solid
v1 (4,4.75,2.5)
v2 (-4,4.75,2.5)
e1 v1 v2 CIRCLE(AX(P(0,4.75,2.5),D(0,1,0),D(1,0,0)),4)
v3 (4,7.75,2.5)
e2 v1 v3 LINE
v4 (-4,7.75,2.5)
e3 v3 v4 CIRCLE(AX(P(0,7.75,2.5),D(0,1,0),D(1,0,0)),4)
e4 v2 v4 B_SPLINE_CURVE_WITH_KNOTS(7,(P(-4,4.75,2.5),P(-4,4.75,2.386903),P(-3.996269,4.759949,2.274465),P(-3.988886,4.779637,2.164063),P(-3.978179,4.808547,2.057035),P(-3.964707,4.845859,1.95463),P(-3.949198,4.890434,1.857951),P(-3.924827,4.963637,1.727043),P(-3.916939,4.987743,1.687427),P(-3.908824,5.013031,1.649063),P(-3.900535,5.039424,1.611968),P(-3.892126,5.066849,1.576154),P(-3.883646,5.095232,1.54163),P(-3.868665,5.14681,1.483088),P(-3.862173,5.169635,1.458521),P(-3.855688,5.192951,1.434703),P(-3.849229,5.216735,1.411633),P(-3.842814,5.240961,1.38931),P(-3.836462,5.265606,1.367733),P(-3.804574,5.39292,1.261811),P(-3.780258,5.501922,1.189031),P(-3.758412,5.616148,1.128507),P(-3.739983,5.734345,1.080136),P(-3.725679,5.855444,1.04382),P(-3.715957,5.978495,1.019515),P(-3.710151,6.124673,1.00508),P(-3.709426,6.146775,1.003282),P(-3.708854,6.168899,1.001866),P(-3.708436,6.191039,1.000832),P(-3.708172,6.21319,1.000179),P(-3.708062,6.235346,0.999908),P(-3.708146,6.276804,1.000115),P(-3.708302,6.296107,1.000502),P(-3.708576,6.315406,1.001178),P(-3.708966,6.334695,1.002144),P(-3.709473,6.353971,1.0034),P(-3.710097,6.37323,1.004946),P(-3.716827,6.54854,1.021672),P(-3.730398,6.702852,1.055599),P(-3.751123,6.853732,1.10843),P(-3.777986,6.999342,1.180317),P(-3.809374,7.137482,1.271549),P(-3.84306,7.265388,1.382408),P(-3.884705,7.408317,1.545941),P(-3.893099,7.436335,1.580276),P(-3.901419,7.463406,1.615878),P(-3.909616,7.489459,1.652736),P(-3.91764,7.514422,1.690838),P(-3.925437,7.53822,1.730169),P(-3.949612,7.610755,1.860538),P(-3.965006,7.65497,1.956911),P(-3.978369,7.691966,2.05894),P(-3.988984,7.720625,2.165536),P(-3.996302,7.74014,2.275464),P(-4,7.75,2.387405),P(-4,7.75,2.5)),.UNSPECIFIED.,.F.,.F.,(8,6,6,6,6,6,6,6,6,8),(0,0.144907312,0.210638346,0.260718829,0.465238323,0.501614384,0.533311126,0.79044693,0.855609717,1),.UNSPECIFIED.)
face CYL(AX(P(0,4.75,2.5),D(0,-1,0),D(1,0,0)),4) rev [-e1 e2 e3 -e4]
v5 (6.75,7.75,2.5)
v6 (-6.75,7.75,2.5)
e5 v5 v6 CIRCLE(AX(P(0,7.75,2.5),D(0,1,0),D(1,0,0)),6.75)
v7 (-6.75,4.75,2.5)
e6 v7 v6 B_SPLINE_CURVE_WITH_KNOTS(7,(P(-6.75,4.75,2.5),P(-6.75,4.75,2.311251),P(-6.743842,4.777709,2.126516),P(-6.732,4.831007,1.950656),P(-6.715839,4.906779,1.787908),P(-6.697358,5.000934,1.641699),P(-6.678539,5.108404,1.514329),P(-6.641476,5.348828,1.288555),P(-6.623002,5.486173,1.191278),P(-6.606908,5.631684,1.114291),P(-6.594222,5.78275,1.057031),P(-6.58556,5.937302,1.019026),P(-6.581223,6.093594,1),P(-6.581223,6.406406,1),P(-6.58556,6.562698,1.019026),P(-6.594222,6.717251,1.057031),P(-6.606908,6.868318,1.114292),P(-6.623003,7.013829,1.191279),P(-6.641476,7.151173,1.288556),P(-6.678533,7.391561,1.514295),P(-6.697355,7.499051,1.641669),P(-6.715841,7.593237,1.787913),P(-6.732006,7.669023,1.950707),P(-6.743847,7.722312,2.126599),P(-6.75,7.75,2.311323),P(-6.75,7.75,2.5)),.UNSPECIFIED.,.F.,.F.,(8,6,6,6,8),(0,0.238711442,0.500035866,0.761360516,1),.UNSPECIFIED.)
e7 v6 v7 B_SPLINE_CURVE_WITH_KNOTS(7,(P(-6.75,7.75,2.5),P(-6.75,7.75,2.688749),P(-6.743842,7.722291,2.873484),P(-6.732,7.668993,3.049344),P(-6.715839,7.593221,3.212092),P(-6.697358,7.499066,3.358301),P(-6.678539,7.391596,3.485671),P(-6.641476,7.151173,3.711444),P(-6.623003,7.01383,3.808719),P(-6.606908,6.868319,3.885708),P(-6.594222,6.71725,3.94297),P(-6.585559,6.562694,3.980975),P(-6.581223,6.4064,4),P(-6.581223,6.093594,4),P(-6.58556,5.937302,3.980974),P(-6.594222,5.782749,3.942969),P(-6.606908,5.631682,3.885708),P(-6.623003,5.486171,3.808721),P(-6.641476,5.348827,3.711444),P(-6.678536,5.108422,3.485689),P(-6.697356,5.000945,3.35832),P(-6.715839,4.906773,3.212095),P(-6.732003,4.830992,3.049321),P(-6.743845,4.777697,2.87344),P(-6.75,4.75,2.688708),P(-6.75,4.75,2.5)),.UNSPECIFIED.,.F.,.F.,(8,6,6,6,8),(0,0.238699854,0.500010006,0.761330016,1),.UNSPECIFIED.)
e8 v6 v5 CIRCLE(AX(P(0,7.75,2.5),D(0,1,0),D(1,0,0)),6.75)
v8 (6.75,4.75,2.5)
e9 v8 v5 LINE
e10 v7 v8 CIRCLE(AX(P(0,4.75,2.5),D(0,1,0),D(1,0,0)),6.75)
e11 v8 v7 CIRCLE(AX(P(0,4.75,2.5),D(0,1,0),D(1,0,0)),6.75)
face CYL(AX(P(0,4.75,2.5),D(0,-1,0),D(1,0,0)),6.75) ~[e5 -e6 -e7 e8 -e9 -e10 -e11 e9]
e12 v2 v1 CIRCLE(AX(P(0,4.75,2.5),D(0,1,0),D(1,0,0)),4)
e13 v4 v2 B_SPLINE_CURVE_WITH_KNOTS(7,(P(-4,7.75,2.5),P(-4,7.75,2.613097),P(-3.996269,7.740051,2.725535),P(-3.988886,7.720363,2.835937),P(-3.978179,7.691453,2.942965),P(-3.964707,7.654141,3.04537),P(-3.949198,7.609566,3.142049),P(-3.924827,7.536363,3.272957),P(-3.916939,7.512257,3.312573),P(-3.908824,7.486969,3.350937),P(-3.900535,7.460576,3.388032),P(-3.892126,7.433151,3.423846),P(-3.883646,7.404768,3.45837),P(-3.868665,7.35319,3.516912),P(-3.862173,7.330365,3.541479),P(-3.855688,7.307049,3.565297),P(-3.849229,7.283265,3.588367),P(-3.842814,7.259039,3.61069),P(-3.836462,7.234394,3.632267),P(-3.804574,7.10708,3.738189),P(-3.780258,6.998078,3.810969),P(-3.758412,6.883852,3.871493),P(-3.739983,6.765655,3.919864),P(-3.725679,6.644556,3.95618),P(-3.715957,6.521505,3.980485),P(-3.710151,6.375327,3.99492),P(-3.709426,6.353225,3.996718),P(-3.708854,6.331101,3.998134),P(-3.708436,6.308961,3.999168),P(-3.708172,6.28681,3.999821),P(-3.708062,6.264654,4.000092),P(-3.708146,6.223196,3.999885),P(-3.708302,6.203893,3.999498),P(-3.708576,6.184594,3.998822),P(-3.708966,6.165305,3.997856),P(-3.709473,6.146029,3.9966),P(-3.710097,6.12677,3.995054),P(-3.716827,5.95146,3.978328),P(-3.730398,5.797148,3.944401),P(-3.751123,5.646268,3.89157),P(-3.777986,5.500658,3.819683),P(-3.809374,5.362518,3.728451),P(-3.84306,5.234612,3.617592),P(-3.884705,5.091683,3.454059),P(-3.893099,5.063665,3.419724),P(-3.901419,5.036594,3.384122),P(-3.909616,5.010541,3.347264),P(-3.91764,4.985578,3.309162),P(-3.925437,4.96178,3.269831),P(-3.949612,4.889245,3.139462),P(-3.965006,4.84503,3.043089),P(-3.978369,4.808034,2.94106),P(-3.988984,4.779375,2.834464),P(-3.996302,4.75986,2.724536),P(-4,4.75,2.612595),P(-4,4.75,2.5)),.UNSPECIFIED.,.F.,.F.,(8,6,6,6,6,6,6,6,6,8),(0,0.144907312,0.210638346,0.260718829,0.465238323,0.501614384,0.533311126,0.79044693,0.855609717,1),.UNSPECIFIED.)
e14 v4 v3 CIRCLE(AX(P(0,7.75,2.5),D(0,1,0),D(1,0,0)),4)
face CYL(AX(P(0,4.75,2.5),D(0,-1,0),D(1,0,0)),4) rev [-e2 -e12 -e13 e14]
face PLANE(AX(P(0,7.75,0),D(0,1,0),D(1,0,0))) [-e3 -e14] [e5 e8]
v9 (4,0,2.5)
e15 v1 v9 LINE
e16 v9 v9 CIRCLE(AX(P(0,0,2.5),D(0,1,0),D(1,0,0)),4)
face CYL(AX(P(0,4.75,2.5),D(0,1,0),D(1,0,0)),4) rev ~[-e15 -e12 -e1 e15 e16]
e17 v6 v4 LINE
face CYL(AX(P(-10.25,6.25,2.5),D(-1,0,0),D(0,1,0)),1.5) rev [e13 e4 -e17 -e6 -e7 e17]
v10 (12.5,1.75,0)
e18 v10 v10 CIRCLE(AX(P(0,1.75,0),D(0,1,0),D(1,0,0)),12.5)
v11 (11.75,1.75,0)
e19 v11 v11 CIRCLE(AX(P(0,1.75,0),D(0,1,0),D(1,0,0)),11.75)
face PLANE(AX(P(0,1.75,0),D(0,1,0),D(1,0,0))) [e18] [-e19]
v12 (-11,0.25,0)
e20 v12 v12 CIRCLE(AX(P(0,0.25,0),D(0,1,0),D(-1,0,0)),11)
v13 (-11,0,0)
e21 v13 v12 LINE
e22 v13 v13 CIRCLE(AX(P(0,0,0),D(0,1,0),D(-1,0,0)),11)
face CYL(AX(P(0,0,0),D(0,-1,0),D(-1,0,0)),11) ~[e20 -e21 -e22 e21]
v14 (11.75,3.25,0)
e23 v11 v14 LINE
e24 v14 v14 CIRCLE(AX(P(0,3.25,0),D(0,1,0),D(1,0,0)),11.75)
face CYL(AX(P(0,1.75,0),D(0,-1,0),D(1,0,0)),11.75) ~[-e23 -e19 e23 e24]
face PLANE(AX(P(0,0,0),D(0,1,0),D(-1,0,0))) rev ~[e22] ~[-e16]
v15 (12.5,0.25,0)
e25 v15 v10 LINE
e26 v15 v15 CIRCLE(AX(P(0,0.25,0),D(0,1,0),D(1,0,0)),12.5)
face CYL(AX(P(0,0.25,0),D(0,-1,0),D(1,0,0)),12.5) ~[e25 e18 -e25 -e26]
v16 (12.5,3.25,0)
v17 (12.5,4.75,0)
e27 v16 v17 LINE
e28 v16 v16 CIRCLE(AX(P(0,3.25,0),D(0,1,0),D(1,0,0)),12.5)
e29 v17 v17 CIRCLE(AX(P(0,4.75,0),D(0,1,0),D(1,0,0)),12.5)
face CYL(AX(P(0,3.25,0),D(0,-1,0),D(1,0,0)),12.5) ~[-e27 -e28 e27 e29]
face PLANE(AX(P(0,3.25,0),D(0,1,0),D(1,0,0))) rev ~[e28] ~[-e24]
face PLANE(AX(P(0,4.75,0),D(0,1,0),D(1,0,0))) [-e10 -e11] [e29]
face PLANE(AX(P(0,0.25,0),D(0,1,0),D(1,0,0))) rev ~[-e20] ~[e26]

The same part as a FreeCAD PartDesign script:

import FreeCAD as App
import Part
import Sketcher
from FreeCAD import Vector
Q = App.Units.Quantity

doc = App.newDocument("Part")
body = doc.addObject("PartDesign::Body", "Body")

sketch1 = body.newObject("Sketcher::SketchObject", "Sketch")
sketch1.AttachmentSupport = (doc.getObject("XZ_Plane"), [""])
sketch1.MapMode = "FlatFace"
sketch1.addGeometry(Part.Circle(Vector(0, 0, 0), Vector(0, 0, 1), 11), False)
sketch1.addConstraint([
    Sketcher.Constraint("Coincident", 0, 3, -1, 1),
    Sketcher.Constraint("Diameter", 0, Q("22 mm")),
])
pad1 = body.newObject("PartDesign::Pad", "Pad")
pad1.Profile = sketch1
pad1.Length = 0.25
pad1.Reversed = True

sketch2 = body.newObject("Sketcher::SketchObject", "Sketch001")
sketch2.AttachmentSupport = (doc.getObject("XZ_Plane"), [""])
sketch2.MapMode = "FlatFace"
sketch2.AttachmentOffset = App.Placement(Vector(0, 0, -0.25), App.Rotation())
sketch2.addGeometry(Part.Circle(Vector(0, 0, 0), Vector(0, 0, 1), 12), False)
sketch2.addConstraint([
    Sketcher.Constraint("Coincident", 0, 3, -1, 1),
    Sketcher.Constraint("Diameter", 0, Q("25 mm")),
])
pad2 = body.newObject("PartDesign::Pad", "Pad001")
pad2.Profile = sketch2
pad2.Length = 1.5
pad2.Reversed = True

sketch3 = body.newObject("Sketcher::SketchObject", "Sketch002")
sketch3.AttachmentSupport = (doc.getObject("XZ_Plane"), [""])
sketch3.MapMode = "FlatFace"
sketch3.AttachmentOffset = App.Placement(Vector(0, 0, -1.75), App.Rotation())
sketch3.addGeometry(Part.Circle(Vector(0, 0, 0), Vector(0, 0, 1), 12), False)
sketch3.addConstraint([
    Sketcher.Constraint("Coincident", 0, 3, -1, 1),
    Sketcher.Constraint("Diameter", 0, Q("23.5 mm")),
])
pad3 = body.newObject("PartDesign::Pad", "Pad002")
pad3.Profile = sketch3
pad3.Length = 1.5
pad3.Reversed = True

sketch4 = body.newObject("Sketcher::SketchObject", "Sketch003")
sketch4.AttachmentSupport = (doc.getObject("XZ_Plane"), [""])
sketch4.MapMode = "FlatFace"
sketch4.AttachmentOffset = App.Placement(Vector(0, 0, -3.25), App.Rotation())
sketch4.addGeometry(Part.Circle(Vector(0, 0, 0), Vector(0, 0, 1), 12), False)
sketch4.addConstraint([
    Sketcher.Constraint("Coincident", 0, 3, -1, 1),
    Sketcher.Constraint("Diameter", 0, Q("25 mm")),
])
pad4 = body.newObject("PartDesign::Pad", "Pad003")
pad4.Profile = sketch4
pad4.Length = 1.5
pad4.Reversed = True

sketch5 = body.newObject("Sketcher::SketchObject", "Sketch004")
sketch5.AttachmentSupport = (doc.getObject("XZ_Plane"), [""])
sketch5.MapMode = "FlatFace"
sketch5.AttachmentOffset = App.Placement(Vector(0, 0, -4.75), App.Rotation())
sketch5.addGeometry([
    Part.Circle(Vector(0, 2.5, 0), Vector(0, 0, 1), 6.8),
    Part.Circle(Vector(0, 2.5, 0), Vector(0, 0, 1), 4),
], False)
sketch5.addConstraint([
    Sketcher.Constraint("Coincident", 1, 3, 0, 3),
    Sketcher.Constraint("PointOnObject", 0, 3, -2),
    Sketcher.Constraint("Diameter", 1, Q("8 mm")),
    Sketcher.Constraint("Diameter", 0, Q("13.5 mm")),
    Sketcher.Constraint("DistanceY", -1, 1, 0, 3, Q("2.5 mm")),
])
pad5 = body.newObject("PartDesign::Pad", "Pad004")
pad5.Profile = sketch5
pad5.Length = 3
pad5.Reversed = True

sketch6 = body.newObject("Sketcher::SketchObject", "Sketch005")
sketch6.AttachmentSupport = (doc.getObject("XZ_Plane"), [""])
sketch6.MapMode = "FlatFace"
sketch6.AttachmentOffset = App.Placement(Vector(0, 0, -4.75), App.Rotation())
sketch6.addGeometry(Part.Circle(Vector(0, 2.5, 0), Vector(0, 0, 1), 4), False)
sketch6.addConstraint([
    Sketcher.Constraint("PointOnObject", 0, 3, -2),
    Sketcher.Constraint("Diameter", 0, Q("8 mm")),
    Sketcher.Constraint("DistanceY", -1, 1, 0, 3, Q("2.5 mm")),
])
pocket1 = body.newObject("PartDesign::Pocket", "Pocket")
pocket1.Profile = sketch6
pocket1.Length = 999
pocket1.Reversed = True

sketch7 = body.newObject("Sketcher::SketchObject", "Sketch006")
sketch7.AttachmentSupport = (doc.getObject("YZ_Plane"), [""])
sketch7.MapMode = "FlatFace"
sketch7.AttachmentOffset = App.Placement(Vector(0, 0, -10.25), App.Rotation())
sketch7.addGeometry(Part.Circle(Vector(6.2, 2.5, 0), Vector(0, 0, 1), 1.5), False)
sketch7.addConstraint([
    Sketcher.Constraint("Diameter", 0, Q("3 mm")),
    Sketcher.Constraint("DistanceY", -1, 1, 0, 3, Q("2.5 mm")),
    Sketcher.Constraint("DistanceX", -1, 1, 0, 3, Q("6.25 mm")),
])
pocket2 = body.newObject("PartDesign::Pocket", "Pocket001")
pocket2.Profile = sketch7
pocket2.Length = 9
pocket2.Reversed = True

doc.recompute()
